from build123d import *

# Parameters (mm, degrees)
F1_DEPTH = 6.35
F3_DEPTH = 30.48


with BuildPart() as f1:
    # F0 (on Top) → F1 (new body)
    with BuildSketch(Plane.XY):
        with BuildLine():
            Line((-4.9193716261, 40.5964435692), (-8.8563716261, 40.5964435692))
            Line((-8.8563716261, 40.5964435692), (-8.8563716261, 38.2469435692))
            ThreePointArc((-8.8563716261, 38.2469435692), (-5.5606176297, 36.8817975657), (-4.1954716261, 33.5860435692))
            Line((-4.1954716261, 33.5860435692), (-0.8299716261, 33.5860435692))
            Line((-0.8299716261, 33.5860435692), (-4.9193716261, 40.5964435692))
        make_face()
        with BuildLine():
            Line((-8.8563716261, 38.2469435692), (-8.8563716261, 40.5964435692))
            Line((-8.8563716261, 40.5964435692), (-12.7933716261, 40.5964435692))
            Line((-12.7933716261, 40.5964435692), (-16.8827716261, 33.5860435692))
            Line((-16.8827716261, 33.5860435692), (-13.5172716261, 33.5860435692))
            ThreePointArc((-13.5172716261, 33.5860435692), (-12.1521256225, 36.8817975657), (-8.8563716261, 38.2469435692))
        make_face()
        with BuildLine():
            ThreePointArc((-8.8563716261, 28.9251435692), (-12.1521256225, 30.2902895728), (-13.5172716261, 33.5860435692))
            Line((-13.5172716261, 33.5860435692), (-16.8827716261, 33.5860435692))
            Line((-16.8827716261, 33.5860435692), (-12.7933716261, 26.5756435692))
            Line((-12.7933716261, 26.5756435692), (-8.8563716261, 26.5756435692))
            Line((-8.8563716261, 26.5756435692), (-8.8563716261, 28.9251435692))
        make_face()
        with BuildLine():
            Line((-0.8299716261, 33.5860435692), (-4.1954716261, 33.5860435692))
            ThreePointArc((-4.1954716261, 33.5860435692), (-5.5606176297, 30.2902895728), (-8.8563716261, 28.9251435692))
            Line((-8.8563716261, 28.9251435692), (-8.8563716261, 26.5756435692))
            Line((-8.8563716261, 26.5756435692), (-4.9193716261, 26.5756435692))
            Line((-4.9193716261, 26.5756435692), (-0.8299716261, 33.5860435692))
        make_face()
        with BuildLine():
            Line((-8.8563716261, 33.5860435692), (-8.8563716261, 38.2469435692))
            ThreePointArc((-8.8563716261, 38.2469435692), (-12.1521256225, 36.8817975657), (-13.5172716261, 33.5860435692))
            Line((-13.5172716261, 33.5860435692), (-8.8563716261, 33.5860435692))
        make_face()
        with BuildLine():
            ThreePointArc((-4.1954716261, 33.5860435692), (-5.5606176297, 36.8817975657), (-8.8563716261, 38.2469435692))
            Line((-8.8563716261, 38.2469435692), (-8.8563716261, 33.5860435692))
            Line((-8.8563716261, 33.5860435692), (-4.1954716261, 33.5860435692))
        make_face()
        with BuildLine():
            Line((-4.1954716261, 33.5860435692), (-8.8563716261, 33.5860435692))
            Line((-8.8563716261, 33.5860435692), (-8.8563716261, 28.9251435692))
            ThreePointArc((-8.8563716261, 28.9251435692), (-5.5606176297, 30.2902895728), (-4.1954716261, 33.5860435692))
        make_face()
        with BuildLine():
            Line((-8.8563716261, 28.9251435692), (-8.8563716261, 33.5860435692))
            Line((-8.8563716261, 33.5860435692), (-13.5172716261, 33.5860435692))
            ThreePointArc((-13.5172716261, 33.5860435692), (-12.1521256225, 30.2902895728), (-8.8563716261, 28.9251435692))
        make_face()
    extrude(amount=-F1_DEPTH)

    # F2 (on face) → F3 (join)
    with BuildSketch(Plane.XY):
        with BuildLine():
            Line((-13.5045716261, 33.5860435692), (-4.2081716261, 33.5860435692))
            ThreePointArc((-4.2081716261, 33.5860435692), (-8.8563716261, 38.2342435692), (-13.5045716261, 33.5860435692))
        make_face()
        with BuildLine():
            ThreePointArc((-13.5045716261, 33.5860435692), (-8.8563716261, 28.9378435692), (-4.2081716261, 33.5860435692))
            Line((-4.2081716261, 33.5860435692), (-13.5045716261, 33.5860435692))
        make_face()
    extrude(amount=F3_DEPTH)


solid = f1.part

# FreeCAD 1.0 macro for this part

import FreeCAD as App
import Part
import Sketcher

V = App.Vector
Q = App.Units.Quantity

doc = App.newDocument("Part")
body = doc.addObject("PartDesign::Body", "Body")

sketch1 = doc.addObject("Sketcher::SketchObject", "Sketch")
body.addObject(sketch1)
sketch1.AttachmentSupport = (doc.XY_Plane, [""])
sketch1.MapMode = "FlatFace"
sketch1.addGeometry([
    Part.LineSegment(V(-5, 41, 0), V(-13, 41, 0)),
    Part.LineSegment(V(-13, 41, 0), V(-17, 34, 0)),
    Part.LineSegment(V(-17, 34, 0), V(-13, 27, 0)),
    Part.LineSegment(V(-13, 27, 0), V(-5, 27, 0)),
    Part.LineSegment(V(-5, 27, 0), V(-1, 34, 0)),
    Part.LineSegment(V(-1, 34, 0), V(-5, 41, 0)),
], False)
sketch1.addConstraint([
    Sketcher.Constraint("Coincident", 0, 2, 1, 1),
    Sketcher.Constraint("Coincident", 1, 2, 2, 1),
    Sketcher.Constraint("Coincident", 2, 2, 3, 1),
    Sketcher.Constraint("Coincident", 3, 2, 4, 1),
    Sketcher.Constraint("Coincident", 4, 2, 5, 1),
    Sketcher.Constraint("Coincident", 5, 2, 0, 1),
    Sketcher.Constraint("Horizontal", 0),
    Sketcher.Constraint("Horizontal", 3),
    Sketcher.Constraint("Parallel", 1, 4),
    Sketcher.Constraint("Parallel", 2, 5),
    Sketcher.Constraint("Horizontal", 1, 2, 4, 2),
    Sketcher.Constraint("Vertical", 0, 2, 2, 2),
    Sketcher.Constraint("Vertical", 3, 2, 5, 2),
    Sketcher.Constraint("DistanceX", 0, 2, 0, 1, Q("0.31 in")),
    Sketcher.Constraint("DistanceX", 1, 2, 0, 2, Q("0.161 in")),
    Sketcher.Constraint("DistanceY", 1, 2, 0, 2, Q("0.276 in")),
    Sketcher.Constraint("DistanceX", 0, 2, -1, 1, Q("12.793372 mm")),
    Sketcher.Constraint("DistanceY", -1, 1, 0, 2, Q("40.596444 mm")),
])
pad1 = doc.addObject("PartDesign::Pad", "Pad")
body.addObject(pad1)
pad1.Profile = sketch1
pad1.Length = Q("0.25 in")
pad1.Reversed = True

sketch2 = doc.addObject("Sketcher::SketchObject", "Sketch001")
body.addObject(sketch2)
sketch2.AttachmentSupport = (doc.XY_Plane, [""])
sketch2.MapMode = "FlatFace"
sketch2.addGeometry(Part.Circle(V(-8.9, 33.6, 0), V(0, 0, 1), 4.6), False)
sketch2.addConstraint([
    Sketcher.Constraint("Diameter", 0, Q("0.366 in")),
    Sketcher.Constraint("DistanceX", 0, 3, -1, 1, Q("8.856372 mm")),
    Sketcher.Constraint("DistanceY", -1, 1, 0, 3, Q("33.586044 mm")),
])
pad2 = doc.addObject("PartDesign::Pad", "Pad001")
body.addObject(pad2)
pad2.Profile = sketch2
pad2.Length = Q("1.2 in")

doc.recompute()
